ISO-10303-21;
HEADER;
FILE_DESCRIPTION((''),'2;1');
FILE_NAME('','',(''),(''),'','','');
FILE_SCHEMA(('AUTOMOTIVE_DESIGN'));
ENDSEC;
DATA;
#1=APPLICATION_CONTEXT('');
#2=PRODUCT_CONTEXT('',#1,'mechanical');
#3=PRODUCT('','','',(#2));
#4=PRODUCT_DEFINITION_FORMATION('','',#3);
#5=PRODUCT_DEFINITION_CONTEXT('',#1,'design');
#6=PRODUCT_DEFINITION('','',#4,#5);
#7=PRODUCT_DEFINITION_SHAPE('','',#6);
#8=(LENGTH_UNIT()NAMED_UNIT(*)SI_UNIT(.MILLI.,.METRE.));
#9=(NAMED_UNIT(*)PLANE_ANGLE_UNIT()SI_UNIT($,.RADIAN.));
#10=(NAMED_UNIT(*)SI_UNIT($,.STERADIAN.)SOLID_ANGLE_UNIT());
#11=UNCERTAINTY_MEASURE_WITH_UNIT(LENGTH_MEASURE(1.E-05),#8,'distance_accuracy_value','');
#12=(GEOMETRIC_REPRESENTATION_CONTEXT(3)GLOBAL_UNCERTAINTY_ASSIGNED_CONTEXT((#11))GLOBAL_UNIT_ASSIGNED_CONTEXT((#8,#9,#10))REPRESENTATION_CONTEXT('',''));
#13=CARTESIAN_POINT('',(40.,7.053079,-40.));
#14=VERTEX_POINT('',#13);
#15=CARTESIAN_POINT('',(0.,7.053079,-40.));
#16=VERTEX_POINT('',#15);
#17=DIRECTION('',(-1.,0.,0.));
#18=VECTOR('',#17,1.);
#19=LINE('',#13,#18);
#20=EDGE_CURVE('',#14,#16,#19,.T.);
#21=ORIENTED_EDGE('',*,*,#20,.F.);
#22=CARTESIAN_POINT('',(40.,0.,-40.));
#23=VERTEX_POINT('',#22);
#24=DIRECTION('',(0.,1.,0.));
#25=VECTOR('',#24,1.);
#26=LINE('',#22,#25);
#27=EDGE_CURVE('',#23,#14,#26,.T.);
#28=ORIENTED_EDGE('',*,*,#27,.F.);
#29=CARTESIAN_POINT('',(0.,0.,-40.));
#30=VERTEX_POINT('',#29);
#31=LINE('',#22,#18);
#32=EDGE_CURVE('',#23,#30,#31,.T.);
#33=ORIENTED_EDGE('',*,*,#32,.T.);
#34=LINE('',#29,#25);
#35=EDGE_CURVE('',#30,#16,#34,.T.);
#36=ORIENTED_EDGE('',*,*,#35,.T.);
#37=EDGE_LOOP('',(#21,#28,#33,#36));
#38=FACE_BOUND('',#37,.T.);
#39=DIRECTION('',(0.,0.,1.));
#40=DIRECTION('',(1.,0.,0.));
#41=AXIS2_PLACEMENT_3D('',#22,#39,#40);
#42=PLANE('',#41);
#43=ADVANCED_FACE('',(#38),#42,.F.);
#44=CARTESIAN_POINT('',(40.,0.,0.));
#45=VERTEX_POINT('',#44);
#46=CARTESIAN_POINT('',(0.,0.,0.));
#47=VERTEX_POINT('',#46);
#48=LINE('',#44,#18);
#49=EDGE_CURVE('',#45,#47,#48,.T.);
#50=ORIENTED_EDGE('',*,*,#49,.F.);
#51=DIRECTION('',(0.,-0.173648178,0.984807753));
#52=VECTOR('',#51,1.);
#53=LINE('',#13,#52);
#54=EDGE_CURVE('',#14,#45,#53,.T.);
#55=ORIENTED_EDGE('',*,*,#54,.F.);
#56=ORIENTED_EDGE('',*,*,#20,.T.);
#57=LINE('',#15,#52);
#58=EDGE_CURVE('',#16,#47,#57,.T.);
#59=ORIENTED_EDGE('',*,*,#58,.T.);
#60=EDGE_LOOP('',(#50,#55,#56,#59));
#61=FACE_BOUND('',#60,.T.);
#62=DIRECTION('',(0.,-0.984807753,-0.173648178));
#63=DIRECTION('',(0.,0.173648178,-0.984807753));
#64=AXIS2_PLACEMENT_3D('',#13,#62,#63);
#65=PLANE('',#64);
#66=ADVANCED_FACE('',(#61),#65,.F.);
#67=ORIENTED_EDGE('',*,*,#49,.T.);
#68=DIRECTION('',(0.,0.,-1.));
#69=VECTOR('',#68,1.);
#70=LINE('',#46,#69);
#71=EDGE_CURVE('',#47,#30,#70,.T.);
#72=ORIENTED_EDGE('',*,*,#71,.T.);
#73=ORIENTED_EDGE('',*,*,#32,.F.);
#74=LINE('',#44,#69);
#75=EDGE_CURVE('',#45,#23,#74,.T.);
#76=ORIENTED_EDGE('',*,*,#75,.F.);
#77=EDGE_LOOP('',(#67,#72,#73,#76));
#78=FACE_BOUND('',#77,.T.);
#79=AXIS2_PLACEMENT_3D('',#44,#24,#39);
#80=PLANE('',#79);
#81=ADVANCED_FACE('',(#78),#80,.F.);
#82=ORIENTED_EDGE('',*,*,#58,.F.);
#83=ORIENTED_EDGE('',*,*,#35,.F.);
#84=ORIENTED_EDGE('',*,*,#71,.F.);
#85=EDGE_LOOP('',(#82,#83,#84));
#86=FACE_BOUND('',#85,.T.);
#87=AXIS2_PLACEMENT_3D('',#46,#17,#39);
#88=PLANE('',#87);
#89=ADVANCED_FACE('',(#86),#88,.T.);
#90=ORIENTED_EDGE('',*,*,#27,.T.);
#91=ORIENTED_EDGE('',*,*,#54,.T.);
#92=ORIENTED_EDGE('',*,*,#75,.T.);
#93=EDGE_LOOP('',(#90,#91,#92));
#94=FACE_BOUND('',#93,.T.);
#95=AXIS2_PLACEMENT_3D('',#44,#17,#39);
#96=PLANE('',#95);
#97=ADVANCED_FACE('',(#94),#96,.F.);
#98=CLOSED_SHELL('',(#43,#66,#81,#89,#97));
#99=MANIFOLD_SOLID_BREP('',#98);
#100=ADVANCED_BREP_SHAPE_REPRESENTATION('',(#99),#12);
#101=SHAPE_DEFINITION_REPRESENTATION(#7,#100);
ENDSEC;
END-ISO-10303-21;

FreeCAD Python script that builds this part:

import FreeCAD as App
import Part
import Sketcher
Q = App.Units.Quantity


def add_polygon(sketch, points):
    """Adds a closed chain of lines whose ends are joined by coincident constraints."""
    first, n = sketch.GeometryCount, len(points)
    for a, b in zip(points, points[1:] + points[:1]):
        sketch.addGeometry(Part.LineSegment(App.Vector(*a, 0), App.Vector(*b, 0)), False)
    for i in range(n):
        sketch.addConstraint(Sketcher.Constraint("Coincident", first + i, 2, first + (i + 1) % n, 1))

doc = App.newDocument("Part")
body = doc.addObject("PartDesign::Body", "Body")

sketch1 = body.newObject("Sketcher::SketchObject", "Sketch")
sketch1.AttachmentSupport = (doc.getObject("YZ_Plane"), [""])
sketch1.MapMode = "FlatFace"
add_polygon(sketch1, [(0, 0), (0, -40), (7, -40)])
sketch1.addConstraint(Sketcher.Constraint("Vertical", 0))
sketch1.addConstraint(Sketcher.Constraint("Horizontal", 1))
sketch1.addConstraint(Sketcher.Constraint("Coincident", 2, 2, -1, 1))
sketch1.addConstraint(Sketcher.Constraint("DistanceY", 0, 2, 0, 1, Q("40 mm")))
sketch1.addConstraint(Sketcher.Constraint("Angle", 2, Q("100 deg")))
pad1 = body.newObject("PartDesign::Pad", "Pad")
pad1.Profile = sketch1
pad1.Length = 40

doc.recompute()
